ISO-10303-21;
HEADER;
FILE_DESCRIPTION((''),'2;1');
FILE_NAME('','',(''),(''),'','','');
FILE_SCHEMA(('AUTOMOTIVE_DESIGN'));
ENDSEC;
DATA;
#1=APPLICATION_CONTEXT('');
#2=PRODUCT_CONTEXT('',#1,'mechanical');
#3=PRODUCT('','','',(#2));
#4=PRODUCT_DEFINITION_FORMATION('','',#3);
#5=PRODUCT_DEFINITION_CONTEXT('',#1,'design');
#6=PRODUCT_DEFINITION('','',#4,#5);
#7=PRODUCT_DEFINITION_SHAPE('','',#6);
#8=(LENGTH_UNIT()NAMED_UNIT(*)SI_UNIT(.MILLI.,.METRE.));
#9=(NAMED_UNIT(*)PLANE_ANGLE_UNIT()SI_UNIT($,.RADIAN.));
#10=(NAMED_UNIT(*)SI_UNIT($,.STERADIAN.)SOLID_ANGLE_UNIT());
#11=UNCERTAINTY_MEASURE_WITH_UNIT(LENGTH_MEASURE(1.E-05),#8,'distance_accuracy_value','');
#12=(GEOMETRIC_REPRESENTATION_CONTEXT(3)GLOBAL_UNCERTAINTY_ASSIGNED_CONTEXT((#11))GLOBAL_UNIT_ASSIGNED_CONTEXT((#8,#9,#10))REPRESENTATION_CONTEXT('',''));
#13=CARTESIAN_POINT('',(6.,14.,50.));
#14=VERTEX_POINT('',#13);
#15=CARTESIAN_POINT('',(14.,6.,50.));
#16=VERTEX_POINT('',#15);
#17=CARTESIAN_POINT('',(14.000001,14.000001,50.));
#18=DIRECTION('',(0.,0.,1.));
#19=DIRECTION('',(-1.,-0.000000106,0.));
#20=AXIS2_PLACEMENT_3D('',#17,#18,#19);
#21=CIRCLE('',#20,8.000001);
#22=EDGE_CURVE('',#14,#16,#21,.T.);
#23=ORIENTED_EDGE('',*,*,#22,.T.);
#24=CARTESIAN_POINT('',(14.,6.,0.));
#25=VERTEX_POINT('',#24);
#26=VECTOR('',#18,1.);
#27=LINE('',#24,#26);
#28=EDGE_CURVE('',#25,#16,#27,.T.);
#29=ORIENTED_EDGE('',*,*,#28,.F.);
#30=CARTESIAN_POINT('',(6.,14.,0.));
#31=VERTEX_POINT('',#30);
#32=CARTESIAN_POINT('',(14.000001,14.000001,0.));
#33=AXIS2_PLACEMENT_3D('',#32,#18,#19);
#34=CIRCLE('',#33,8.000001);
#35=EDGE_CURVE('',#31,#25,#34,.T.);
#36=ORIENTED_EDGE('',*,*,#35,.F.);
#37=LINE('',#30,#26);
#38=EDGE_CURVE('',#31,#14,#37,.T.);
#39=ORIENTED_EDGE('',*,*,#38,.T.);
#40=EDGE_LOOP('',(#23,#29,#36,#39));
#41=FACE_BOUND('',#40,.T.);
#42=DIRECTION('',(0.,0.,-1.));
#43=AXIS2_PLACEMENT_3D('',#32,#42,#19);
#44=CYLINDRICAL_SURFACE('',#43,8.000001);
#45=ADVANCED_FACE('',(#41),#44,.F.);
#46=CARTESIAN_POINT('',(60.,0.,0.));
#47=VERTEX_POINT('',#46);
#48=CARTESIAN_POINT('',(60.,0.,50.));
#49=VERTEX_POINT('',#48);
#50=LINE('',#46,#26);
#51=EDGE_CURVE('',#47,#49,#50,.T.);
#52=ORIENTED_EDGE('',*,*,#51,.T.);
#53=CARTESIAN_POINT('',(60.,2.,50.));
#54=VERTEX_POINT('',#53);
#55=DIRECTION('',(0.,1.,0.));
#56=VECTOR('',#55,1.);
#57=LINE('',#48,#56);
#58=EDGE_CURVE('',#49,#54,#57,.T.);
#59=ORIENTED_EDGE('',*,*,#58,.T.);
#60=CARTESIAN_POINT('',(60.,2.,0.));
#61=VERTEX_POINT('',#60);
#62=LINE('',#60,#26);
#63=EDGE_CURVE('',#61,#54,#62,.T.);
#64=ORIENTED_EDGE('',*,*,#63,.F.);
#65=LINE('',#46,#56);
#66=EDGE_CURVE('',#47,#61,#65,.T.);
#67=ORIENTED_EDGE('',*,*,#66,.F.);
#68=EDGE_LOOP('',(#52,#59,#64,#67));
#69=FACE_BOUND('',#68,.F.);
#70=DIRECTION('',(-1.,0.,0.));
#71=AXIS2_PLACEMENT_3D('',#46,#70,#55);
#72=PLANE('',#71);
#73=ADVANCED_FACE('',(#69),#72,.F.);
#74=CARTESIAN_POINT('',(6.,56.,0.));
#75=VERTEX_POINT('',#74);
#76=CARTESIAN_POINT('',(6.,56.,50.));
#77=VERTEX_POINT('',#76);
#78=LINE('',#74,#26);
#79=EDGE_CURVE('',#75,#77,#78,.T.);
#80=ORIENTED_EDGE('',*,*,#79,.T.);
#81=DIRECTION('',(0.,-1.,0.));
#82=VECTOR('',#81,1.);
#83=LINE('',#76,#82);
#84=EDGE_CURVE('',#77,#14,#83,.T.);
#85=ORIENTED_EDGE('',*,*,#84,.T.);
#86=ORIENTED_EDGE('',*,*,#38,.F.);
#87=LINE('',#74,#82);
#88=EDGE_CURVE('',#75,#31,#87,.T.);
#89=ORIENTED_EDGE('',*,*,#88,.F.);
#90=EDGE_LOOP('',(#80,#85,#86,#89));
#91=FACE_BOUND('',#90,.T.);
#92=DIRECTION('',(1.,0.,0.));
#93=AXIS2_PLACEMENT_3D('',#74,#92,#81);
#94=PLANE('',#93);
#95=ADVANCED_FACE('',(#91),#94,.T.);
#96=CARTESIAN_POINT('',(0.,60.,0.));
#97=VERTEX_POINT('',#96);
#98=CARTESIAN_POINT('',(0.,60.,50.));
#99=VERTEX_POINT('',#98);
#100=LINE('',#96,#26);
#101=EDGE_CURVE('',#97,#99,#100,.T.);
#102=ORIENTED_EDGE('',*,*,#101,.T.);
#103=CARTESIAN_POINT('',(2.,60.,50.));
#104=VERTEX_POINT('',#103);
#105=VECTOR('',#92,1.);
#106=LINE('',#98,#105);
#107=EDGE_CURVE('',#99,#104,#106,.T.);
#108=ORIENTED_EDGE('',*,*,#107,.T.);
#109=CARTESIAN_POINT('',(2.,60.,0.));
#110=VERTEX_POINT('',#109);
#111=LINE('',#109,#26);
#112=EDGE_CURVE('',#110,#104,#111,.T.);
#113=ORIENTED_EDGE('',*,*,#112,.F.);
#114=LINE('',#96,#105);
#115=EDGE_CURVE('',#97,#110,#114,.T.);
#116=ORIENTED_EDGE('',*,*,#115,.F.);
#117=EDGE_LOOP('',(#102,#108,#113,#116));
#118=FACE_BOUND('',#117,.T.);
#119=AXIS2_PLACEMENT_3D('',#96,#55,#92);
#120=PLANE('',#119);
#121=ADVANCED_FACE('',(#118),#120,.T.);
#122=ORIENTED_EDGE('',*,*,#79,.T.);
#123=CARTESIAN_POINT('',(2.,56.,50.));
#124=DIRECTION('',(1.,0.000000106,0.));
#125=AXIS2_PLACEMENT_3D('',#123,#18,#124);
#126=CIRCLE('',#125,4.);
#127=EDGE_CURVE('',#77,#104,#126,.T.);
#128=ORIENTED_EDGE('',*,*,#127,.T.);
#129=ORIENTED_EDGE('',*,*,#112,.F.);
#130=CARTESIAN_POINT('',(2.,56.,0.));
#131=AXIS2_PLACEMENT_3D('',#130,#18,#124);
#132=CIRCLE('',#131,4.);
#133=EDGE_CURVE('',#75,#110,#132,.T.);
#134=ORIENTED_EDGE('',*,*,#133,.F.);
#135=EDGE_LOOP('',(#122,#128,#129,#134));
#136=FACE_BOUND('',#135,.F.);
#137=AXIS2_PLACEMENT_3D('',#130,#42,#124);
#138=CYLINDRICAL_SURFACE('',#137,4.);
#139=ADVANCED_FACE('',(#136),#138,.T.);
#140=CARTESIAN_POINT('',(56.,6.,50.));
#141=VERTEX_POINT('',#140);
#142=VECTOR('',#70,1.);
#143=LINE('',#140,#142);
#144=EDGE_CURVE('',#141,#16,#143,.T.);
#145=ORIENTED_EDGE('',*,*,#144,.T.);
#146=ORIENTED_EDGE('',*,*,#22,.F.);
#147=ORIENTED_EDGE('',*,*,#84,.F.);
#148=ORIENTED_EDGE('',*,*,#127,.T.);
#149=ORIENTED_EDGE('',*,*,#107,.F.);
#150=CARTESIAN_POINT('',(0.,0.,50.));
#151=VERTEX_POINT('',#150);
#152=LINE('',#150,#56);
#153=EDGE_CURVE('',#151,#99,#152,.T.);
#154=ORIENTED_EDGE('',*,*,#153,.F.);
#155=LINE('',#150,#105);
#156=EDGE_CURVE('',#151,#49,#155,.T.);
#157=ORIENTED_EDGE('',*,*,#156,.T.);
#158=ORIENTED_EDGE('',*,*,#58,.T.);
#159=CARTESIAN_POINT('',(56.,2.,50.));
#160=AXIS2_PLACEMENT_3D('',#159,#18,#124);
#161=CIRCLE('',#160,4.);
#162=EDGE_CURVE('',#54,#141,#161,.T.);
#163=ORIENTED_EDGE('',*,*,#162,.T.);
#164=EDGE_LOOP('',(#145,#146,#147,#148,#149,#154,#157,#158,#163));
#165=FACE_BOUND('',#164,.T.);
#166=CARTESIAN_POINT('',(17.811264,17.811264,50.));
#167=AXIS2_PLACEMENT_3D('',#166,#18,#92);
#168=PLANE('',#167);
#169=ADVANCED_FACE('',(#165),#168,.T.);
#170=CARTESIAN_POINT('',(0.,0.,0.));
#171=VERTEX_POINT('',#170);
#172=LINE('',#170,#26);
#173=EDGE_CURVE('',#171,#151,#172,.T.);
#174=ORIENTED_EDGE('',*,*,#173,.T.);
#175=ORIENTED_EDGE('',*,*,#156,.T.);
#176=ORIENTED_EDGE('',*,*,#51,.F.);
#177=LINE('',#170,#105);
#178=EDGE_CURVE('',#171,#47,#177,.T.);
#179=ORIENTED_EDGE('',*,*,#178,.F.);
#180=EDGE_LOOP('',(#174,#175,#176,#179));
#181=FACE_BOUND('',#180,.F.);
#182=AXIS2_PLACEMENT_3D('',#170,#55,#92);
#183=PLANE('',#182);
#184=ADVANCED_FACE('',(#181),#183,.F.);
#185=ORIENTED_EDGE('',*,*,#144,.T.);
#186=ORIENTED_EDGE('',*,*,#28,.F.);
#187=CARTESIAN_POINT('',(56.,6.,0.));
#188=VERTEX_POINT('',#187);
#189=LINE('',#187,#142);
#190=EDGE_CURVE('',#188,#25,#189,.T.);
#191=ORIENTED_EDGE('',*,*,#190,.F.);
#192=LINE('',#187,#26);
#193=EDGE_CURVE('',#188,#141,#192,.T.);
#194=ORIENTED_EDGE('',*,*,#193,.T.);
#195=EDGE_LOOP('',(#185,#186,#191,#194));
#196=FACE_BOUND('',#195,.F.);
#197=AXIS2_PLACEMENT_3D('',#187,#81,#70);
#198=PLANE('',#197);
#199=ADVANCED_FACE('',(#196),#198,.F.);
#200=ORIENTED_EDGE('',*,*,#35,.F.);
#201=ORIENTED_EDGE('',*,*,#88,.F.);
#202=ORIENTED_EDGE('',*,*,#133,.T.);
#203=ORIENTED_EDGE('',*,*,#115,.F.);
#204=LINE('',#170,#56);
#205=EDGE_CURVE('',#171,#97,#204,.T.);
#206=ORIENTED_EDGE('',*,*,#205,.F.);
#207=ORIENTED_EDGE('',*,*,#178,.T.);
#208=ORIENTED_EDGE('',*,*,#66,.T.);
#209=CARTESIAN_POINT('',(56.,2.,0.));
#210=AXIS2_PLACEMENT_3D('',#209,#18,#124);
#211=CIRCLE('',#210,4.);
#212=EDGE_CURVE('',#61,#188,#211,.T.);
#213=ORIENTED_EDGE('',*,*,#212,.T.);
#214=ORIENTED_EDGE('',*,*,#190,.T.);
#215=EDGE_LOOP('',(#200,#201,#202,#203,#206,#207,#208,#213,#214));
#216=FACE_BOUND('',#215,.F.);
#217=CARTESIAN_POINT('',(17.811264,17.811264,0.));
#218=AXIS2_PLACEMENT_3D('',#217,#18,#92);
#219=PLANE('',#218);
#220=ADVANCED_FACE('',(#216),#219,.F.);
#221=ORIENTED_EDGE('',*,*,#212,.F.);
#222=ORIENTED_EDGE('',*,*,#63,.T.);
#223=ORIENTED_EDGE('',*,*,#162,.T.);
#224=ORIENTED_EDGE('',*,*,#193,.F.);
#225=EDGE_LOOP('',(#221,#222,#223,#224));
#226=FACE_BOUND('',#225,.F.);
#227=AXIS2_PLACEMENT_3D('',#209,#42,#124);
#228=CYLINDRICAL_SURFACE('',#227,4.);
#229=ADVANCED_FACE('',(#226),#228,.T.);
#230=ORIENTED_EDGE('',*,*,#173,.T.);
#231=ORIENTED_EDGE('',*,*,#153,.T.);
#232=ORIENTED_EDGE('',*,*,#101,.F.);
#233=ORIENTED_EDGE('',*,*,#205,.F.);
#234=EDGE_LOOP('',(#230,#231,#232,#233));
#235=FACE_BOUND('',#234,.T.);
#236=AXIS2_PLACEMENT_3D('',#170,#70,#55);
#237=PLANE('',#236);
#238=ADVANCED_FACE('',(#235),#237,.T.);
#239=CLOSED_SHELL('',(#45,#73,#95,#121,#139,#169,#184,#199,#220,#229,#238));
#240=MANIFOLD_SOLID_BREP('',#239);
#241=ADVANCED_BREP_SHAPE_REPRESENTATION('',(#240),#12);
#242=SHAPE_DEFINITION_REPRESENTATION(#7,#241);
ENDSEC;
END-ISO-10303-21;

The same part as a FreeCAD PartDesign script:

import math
import FreeCAD as App
import Part
import Sketcher
Q = App.Units.Quantity

doc = App.newDocument("Part")
params = doc.addObject("Spreadsheet::Sheet", "Params")
for row, (alias, value) in enumerate([
    ("sketch1_radius", "4 mm"),
    ("sketch1_radius2", "8.000001 mm"),
    ("sketch1_width", "60 mm"),
    ("sketch1_width2", "42 mm"),
    ("pad1_length", "50 mm"),
], start=1):
    params.set(f"A{row}", alias)
    params.set(f"B{row}", "=" + value)
    params.setAlias(f"B{row}", alias)

body = doc.addObject("PartDesign::Body", "Body")

# Sketch on XY plane
sketch1 = body.newObject("Sketcher::SketchObject", "Sketch")
sketch1.AttachmentSupport = (doc.getObject("XY_Plane"), [""])
sketch1.MapMode = "FlatFace"
sketch1.addGeometry([
    Part.LineSegment(App.Vector(0, 0, 0), App.Vector(60, 0, 0)),  # 0
    Part.LineSegment(App.Vector(60, 0, 0), App.Vector(60, 2, 0)),  # 1
    Part.ArcOfCircle(Part.Circle(App.Vector(56, 2, 0), App.Vector(0, 0, 1), 4), math.radians(0), math.radians(90)),  # 2
    Part.LineSegment(App.Vector(56, 6, 0), App.Vector(14, 6, 0)),  # 3
    Part.ArcOfCircle(Part.Circle(App.Vector(14, 14, 0), App.Vector(0, 0, 1), 8), math.radians(-180), math.radians(-90)),  # 4
    Part.LineSegment(App.Vector(6, 14, 0), App.Vector(6, 56, 0)),  # 5
    Part.ArcOfCircle(Part.Circle(App.Vector(2, 56, 0), App.Vector(0, 0, 1), 4), math.radians(0), math.radians(90)),  # 6
    Part.LineSegment(App.Vector(2, 60, 0), App.Vector(0, 60, 0)),  # 7
    Part.LineSegment(App.Vector(0, 60, 0), App.Vector(0, 0, 0)),  # 8
], False)
sketch1.addConstraint([
    Sketcher.Constraint("Coincident", 0, 2, 1, 1),
    Sketcher.Constraint("Tangent", 1, 2, 2, 1),
    Sketcher.Constraint("Tangent", 2, 2, 3, 1),
    Sketcher.Constraint("Tangent", 3, 2, 4, 2),
    Sketcher.Constraint("Tangent", 4, 1, 5, 1),
    Sketcher.Constraint("Tangent", 5, 2, 6, 1),
    Sketcher.Constraint("Tangent", 6, 2, 7, 1),
    Sketcher.Constraint("Coincident", 7, 2, 8, 1),
    Sketcher.Constraint("Coincident", 8, 2, 0, 1),
    Sketcher.Constraint("Horizontal", 0),
    Sketcher.Constraint("Vertical", 1),
    Sketcher.Constraint("Horizontal", 3),
    Sketcher.Constraint("Vertical", 5),
    Sketcher.Constraint("Horizontal", 7),
    Sketcher.Constraint("Vertical", 8),
    Sketcher.Constraint("Coincident", 8, 2, -1, 1),
    Sketcher.Constraint("Equal", 2, 6),
    Sketcher.Constraint("Equal", 7, 1),
    Sketcher.Constraint("Equal", 3, 5),
    Sketcher.Constraint("Radius", 2, Q("4 mm")),
    Sketcher.Constraint("Radius", 4, Q("8.000001 mm")),
    Sketcher.Constraint("DistanceX", 0, 1, 0, 2, Q("60 mm")),
    Sketcher.Constraint("DistanceX", 3, 2, 3, 1, Q("42 mm")),
])
sketch1.setExpression("Constraints[19]", "Params.sketch1_radius")
sketch1.setExpression("Constraints[20]", "Params.sketch1_radius2")
sketch1.setExpression("Constraints[21]", "Params.sketch1_width")
sketch1.setExpression("Constraints[22]", "Params.sketch1_width2")
pad1 = body.newObject("PartDesign::Pad", "Pad")
pad1.Profile = sketch1
pad1.setExpression("Length", "Params.pad1_length")

doc.recompute()
